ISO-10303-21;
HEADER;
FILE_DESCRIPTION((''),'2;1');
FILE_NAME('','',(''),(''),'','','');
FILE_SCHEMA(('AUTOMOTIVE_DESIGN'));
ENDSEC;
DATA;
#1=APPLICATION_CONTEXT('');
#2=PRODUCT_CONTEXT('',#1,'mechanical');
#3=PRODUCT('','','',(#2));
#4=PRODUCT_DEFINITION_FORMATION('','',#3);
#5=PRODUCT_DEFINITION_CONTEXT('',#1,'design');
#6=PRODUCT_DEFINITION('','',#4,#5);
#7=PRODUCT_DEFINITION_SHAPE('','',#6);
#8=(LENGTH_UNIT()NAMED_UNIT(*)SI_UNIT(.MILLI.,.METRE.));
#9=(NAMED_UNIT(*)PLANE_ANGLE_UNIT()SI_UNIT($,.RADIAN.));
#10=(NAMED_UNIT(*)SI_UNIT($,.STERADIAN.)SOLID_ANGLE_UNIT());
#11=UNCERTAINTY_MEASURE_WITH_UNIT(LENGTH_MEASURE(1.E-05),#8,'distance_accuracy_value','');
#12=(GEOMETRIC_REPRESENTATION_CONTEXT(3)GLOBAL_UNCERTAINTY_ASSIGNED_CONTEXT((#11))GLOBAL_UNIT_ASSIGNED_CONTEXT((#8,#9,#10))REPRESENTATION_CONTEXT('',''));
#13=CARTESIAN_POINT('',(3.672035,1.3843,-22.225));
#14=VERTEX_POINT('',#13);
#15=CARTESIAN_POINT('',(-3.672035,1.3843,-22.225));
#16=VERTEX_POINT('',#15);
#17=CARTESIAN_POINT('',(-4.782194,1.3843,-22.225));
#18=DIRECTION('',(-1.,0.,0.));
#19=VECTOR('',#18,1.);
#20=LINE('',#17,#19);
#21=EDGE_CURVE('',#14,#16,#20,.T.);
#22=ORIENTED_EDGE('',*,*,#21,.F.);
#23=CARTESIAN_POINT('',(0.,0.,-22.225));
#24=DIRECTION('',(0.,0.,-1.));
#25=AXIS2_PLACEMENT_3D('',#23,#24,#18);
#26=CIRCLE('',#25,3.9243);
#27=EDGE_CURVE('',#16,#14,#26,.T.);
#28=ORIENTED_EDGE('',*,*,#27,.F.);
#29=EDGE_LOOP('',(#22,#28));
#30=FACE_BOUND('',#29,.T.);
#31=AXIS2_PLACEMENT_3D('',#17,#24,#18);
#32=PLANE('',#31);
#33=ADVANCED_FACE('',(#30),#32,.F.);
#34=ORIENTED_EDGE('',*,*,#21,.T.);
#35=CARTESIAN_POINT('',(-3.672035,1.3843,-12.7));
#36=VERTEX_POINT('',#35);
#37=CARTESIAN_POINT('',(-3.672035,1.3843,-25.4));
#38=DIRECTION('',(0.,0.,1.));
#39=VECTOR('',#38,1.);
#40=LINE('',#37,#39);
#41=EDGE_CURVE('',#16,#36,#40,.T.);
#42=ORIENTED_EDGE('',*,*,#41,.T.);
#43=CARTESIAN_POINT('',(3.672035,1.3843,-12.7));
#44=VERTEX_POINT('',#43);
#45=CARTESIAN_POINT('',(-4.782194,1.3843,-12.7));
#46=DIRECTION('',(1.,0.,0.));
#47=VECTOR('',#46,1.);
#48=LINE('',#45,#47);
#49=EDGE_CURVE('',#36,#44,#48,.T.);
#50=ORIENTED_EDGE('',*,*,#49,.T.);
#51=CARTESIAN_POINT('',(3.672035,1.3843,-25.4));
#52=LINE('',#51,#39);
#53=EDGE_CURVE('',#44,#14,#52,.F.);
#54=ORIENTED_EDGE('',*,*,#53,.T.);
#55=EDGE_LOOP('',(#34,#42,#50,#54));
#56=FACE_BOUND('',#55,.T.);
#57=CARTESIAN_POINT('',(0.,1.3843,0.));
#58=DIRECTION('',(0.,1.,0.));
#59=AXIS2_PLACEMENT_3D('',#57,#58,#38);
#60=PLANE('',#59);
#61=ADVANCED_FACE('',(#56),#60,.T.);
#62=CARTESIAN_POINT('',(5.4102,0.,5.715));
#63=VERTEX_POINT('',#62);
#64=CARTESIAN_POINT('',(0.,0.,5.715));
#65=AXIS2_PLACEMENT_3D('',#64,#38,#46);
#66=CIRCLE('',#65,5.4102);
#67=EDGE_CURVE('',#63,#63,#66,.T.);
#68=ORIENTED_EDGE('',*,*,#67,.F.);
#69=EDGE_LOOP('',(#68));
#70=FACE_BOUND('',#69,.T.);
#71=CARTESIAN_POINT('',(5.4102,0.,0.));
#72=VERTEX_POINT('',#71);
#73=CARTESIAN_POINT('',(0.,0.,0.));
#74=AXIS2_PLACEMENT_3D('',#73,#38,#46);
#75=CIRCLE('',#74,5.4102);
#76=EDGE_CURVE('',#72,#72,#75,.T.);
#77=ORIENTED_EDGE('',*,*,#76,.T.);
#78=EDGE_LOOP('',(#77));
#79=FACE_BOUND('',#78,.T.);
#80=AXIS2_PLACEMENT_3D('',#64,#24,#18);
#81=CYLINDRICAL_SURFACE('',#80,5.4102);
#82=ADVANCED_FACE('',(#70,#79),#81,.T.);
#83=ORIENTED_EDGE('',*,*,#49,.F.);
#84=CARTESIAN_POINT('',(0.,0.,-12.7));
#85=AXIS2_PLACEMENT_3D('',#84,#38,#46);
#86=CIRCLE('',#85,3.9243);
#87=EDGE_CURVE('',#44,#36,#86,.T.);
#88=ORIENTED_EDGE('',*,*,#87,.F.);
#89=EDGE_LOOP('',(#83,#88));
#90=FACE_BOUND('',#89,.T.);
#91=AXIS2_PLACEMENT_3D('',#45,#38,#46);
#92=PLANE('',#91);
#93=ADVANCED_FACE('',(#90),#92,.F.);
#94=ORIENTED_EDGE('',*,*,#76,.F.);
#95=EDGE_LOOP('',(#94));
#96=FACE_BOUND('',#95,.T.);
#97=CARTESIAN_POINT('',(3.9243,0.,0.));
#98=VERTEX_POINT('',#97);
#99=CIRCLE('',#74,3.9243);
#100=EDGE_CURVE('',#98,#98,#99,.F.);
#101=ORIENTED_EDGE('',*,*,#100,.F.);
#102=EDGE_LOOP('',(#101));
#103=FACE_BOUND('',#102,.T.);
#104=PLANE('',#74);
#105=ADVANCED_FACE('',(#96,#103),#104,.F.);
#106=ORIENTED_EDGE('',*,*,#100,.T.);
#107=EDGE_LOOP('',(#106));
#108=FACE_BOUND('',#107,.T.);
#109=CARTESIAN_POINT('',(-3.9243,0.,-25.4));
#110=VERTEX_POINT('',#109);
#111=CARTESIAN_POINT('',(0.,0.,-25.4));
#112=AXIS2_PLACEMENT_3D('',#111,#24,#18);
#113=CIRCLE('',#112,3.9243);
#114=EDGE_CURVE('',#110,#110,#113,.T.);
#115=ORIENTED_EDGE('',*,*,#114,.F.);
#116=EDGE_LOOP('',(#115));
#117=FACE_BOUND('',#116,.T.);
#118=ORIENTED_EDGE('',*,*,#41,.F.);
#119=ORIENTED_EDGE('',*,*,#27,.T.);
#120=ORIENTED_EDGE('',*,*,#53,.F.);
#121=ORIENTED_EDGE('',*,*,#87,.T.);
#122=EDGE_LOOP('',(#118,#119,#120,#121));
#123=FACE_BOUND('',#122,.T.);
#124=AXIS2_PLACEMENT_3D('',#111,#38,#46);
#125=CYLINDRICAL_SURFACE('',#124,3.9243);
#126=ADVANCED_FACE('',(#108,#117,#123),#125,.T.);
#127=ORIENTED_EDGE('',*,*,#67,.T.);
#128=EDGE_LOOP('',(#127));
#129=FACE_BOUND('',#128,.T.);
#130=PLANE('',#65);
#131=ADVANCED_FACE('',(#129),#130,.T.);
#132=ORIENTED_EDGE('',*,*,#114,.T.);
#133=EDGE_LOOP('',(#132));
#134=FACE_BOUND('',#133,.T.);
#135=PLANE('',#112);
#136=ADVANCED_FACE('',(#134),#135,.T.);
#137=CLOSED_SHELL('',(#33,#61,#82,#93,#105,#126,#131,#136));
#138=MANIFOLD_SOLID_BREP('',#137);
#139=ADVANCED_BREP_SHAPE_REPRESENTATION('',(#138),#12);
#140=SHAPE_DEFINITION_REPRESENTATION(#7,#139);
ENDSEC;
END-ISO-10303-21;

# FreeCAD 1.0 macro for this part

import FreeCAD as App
import Part
import Sketcher
Q = App.Units.Quantity


def add_polygon(sketch, points):
    """Adds a closed chain of lines whose ends are joined by coincident constraints."""
    first, n = sketch.GeometryCount, len(points)
    for a, b in zip(points, points[1:] + points[:1]):
        sketch.addGeometry(Part.LineSegment(App.Vector(*a, 0), App.Vector(*b, 0)), False)
    for i in range(n):
        sketch.addConstraint(Sketcher.Constraint("Coincident", first + i, 2, first + (i + 1) % n, 1))

doc = App.newDocument("Part")
body = doc.addObject("PartDesign::Body", "Body")

# Sketch on XY plane
sketch1 = body.newObject("Sketcher::SketchObject", "Sketch")
sketch1.AttachmentSupport = (doc.getObject("XY_Plane"), [""])
sketch1.MapMode = "FlatFace"
sketch1.addGeometry(Part.Circle(App.Vector(0, 0, 0), App.Vector(0, 0, 1), 5), False)
sketch1.addConstraint([
    Sketcher.Constraint("Coincident", 0, 3, -1, 1),
    Sketcher.Constraint("Diameter", 0, Q("0.426 in")),
])
pad1 = body.newObject("PartDesign::Pad", "Pad")
pad1.Profile = sketch1
pad1.Length = Q("0.225 in")

# Sketch on XY plane
sketch2 = body.newObject("Sketcher::SketchObject", "Sketch001")
sketch2.AttachmentSupport = (doc.getObject("XY_Plane"), [""])
sketch2.MapMode = "FlatFace"
sketch2.addGeometry(Part.Circle(App.Vector(0, 0, 0), App.Vector(0, 0, 1), 3.9), False)
sketch2.addConstraint([
    Sketcher.Constraint("Coincident", 0, 3, -1, 1),
    Sketcher.Constraint("Diameter", 0, Q("0.309 in")),
])
pad2 = body.newObject("PartDesign::Pad", "Pad001")
pad2.Profile = sketch2
pad2.Length = Q("1 in")
pad2.Reversed = True

# Sketch on XZ plane
sketch3 = body.newObject("Sketcher::SketchObject", "Sketch002")
sketch3.AttachmentSupport = (doc.getObject("XZ_Plane"), [""])
sketch3.MapMode = "FlatFace"
sketch3.AttachmentOffset = App.Placement(App.Vector(0, 0, -0.1545 * 25.4), App.Rotation())
add_polygon(sketch3, [(-5, -22), (-5, -13), (4, -13), (4, -22)])  # lines 0-3
sketch3.addConstraint([
    Sketcher.Constraint("Vertical", 0),
    Sketcher.Constraint("Horizontal", 1),
    Sketcher.Constraint("Vertical", 2),
    Sketcher.Constraint("Horizontal", 3),
    Sketcher.Constraint("DistanceY", 0, 2, -1, 1, Q("0.5 in")),
    Sketcher.Constraint("DistanceY", 0, 1, 0, 2, Q("0.375 in")),
    Sketcher.Constraint("DistanceX", 1, 1, 1, 2, 9.007283),
    Sketcher.Constraint("DistanceX", -1, 1, 1, 2, 4.225089),
])
pocket1 = body.newObject("PartDesign::Pocket", "Pocket")
pocket1.Profile = sketch3
pocket1.Length = Q("0.1 in")
pocket1.Reversed = True

doc.recompute()
